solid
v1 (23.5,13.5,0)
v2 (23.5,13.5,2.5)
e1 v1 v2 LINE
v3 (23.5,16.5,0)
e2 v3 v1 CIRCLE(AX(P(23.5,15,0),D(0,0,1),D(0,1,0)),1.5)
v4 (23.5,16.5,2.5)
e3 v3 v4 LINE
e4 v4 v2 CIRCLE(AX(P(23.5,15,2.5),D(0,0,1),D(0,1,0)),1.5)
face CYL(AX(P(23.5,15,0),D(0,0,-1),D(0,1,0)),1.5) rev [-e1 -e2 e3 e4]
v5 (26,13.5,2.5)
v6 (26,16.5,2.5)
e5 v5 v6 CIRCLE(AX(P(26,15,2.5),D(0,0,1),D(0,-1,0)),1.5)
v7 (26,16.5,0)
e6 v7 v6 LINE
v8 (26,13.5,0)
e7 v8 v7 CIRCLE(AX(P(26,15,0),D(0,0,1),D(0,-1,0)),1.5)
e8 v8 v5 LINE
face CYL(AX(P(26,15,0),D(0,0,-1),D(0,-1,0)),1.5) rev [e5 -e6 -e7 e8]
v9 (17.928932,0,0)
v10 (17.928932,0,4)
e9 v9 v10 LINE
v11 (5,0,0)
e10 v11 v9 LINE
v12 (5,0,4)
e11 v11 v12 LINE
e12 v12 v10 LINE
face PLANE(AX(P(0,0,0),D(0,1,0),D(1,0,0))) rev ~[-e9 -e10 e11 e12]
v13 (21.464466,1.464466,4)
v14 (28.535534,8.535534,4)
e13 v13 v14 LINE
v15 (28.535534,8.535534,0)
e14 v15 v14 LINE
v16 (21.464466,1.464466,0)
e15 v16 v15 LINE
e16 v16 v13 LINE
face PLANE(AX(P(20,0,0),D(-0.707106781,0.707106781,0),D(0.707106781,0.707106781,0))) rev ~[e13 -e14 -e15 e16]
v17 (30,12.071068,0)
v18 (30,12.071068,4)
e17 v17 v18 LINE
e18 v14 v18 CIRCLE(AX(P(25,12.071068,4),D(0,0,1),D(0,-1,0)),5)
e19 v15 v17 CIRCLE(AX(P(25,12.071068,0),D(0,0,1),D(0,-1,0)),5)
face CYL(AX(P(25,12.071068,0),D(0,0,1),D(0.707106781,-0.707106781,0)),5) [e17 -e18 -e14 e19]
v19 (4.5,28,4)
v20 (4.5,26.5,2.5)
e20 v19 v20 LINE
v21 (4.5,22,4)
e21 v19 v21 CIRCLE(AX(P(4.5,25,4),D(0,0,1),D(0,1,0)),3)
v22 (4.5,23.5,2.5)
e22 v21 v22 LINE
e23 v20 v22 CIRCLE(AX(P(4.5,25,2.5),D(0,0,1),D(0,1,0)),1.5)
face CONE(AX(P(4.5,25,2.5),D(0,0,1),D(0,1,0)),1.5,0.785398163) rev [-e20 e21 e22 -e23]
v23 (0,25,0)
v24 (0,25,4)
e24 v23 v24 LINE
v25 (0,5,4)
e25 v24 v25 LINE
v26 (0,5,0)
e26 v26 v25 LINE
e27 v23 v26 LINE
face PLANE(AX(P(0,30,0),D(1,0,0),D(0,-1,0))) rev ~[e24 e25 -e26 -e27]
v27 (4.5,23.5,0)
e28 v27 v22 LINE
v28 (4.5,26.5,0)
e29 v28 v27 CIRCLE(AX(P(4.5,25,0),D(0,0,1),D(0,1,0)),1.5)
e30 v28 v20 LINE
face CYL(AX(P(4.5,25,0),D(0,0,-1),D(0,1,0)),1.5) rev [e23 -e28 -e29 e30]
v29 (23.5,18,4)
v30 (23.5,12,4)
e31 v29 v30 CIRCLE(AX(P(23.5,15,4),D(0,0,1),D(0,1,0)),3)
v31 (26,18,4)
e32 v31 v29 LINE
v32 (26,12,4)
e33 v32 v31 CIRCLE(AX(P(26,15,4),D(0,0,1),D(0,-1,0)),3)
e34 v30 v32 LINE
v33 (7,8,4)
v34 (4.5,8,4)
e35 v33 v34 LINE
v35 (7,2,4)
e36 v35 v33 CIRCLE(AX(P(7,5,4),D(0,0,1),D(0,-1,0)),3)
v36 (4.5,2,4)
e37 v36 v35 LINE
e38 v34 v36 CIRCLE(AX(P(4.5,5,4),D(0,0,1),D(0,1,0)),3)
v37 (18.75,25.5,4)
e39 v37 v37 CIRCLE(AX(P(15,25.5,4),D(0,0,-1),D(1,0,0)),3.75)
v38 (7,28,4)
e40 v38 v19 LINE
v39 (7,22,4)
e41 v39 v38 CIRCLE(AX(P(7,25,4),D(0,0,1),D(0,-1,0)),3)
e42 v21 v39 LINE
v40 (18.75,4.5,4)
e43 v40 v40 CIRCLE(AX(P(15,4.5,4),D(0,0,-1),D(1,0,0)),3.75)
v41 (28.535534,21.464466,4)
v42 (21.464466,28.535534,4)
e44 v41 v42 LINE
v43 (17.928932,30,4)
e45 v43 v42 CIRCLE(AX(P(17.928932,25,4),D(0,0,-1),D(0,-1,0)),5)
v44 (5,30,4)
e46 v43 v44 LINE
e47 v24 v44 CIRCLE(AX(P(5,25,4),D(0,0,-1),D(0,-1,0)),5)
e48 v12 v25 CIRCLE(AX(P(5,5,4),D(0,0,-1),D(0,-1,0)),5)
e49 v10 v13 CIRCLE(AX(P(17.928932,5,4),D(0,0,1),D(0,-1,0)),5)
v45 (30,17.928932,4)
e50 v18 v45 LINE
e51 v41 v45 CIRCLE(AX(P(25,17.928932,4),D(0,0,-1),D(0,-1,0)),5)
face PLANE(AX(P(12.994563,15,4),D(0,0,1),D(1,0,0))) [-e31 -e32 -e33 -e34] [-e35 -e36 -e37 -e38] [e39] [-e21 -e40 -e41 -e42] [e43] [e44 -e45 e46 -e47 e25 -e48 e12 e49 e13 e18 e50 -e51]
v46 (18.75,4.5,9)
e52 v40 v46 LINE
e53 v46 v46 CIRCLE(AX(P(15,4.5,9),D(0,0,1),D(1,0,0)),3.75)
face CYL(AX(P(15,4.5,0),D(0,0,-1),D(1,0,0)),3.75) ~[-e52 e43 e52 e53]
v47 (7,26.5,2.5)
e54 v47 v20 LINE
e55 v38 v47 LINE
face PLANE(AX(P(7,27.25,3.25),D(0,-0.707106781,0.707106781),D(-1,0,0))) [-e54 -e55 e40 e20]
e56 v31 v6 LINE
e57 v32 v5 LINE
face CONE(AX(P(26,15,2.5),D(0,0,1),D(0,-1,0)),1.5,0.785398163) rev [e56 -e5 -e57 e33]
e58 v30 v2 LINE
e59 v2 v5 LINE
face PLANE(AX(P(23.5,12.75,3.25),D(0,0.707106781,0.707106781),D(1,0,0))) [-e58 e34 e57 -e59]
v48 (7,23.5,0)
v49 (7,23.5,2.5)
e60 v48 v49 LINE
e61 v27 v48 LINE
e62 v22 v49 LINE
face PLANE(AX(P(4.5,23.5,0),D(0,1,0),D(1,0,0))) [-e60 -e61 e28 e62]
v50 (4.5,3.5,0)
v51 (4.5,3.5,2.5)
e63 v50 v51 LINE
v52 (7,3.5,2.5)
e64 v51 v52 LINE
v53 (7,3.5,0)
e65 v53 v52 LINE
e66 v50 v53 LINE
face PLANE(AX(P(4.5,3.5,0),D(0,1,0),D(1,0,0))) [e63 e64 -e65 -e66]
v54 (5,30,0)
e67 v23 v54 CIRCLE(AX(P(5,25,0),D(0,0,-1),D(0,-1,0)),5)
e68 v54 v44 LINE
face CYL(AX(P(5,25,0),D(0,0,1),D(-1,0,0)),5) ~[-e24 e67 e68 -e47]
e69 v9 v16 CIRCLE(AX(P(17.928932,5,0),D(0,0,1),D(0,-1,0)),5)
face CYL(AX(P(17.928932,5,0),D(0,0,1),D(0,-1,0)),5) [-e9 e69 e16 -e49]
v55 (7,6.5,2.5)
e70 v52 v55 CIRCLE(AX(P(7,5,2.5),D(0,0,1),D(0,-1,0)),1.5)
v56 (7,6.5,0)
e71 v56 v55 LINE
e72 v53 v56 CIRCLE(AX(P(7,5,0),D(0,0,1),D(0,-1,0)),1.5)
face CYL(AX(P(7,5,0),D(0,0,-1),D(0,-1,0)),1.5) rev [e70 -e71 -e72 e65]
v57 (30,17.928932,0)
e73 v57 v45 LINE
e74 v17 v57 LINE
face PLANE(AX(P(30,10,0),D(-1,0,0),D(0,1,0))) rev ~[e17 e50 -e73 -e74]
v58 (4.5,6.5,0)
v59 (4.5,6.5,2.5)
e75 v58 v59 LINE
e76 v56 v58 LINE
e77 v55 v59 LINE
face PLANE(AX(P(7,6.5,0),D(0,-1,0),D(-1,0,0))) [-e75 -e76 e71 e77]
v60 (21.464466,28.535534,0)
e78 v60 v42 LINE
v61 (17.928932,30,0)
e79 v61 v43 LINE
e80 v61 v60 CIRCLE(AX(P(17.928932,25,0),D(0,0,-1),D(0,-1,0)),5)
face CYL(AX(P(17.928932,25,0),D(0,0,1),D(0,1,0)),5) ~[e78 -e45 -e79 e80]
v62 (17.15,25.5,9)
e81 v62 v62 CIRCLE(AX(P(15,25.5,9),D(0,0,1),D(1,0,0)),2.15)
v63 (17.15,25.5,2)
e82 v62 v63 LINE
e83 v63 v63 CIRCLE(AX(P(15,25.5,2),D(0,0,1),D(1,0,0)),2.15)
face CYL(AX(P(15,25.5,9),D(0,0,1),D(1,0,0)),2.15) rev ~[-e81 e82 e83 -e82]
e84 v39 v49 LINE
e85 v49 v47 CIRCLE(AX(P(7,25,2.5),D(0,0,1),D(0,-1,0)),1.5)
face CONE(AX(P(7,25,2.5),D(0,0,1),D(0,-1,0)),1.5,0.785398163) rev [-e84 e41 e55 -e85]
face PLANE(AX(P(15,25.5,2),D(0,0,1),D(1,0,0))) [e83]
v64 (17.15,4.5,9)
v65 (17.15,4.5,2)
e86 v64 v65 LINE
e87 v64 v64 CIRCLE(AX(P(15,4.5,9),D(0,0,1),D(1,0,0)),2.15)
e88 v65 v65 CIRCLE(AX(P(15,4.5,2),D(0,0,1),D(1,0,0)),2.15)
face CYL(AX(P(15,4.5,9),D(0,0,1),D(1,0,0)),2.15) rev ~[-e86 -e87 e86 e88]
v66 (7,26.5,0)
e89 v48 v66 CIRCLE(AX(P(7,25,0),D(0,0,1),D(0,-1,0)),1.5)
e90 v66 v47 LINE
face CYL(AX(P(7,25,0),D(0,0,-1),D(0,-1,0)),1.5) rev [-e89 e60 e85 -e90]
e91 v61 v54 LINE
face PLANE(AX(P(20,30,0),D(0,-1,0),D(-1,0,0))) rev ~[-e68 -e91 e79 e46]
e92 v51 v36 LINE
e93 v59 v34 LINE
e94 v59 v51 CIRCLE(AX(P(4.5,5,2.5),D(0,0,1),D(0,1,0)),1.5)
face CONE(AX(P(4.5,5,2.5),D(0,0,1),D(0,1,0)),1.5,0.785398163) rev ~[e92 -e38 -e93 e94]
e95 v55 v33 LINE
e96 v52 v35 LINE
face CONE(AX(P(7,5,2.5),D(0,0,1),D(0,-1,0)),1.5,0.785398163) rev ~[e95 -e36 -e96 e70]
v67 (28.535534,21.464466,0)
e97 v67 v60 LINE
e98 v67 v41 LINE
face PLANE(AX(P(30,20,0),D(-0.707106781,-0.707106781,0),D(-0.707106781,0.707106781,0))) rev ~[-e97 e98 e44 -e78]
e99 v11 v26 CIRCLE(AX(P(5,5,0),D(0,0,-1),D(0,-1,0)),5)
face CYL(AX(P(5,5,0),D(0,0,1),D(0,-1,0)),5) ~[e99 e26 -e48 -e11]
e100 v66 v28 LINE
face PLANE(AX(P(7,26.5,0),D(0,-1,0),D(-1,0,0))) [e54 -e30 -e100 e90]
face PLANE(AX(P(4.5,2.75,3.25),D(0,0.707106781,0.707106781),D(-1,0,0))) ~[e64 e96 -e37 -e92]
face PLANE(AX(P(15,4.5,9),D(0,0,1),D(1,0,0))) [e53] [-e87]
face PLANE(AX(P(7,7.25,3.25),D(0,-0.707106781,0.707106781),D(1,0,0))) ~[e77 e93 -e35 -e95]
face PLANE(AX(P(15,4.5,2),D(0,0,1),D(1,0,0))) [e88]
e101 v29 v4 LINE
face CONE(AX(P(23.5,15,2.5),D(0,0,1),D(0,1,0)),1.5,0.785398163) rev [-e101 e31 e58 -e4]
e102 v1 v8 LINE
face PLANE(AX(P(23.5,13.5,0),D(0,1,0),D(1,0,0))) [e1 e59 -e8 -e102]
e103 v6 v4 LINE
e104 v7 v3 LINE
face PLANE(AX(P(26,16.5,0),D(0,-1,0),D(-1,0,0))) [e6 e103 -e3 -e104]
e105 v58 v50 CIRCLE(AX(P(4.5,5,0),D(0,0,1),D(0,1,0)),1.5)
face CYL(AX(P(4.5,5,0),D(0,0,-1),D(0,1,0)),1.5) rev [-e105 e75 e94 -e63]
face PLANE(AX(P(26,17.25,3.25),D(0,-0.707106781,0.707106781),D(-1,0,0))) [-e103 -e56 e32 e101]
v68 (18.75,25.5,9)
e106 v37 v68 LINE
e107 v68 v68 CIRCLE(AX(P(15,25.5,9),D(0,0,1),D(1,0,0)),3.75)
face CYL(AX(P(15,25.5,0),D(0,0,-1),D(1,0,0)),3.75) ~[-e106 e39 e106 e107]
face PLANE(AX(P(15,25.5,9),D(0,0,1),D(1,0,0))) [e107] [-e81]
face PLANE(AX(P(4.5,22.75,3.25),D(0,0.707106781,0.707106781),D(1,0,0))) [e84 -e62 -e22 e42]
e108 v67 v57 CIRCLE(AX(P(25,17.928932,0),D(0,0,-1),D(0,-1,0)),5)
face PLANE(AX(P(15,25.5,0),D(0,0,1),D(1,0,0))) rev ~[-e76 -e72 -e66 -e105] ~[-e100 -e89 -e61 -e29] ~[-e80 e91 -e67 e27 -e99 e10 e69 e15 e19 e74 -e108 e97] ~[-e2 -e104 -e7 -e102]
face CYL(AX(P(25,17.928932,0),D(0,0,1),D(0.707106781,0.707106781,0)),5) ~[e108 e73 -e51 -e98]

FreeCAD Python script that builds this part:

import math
import FreeCAD as App
import Part
import Sketcher


def edges_at(feature, points):
    """Names of the edges that pass closest to the given points."""
    edges = feature.Shape.Edges
    near = lambda p: min(range(len(edges)), key=lambda i: edges[i].distToShape(Part.Vertex(*p))[0])
    return sorted({f"Edge{near(p) + 1}" for p in points})


def add_polygon(sketch, points):
    """Adds a closed chain of lines whose ends are joined by coincident constraints."""
    first, n = sketch.GeometryCount, len(points)
    for a, b in zip(points, points[1:] + points[:1]):
        sketch.addGeometry(Part.LineSegment(App.Vector(*a, 0), App.Vector(*b, 0)), False)
    for i in range(n):
        sketch.addConstraint(Sketcher.Constraint("Coincident", first + i, 2, first + (i + 1) % n, 1))

doc = App.newDocument("Part")
params = doc.addObject("Spreadsheet::Sheet", "Params")
for row, (alias, value) in enumerate([
    ("sketch1_radius", "1.5 mm"),
    ("sketch1_width", "20 mm"),
    ("sketch1_height", "10 mm"),
    ("sketch1_height2", "30 mm"),
    ("sketch1_width2", "2.5 mm"),
    ("pad1_length", "4 mm"),
    ("sketch2_diameter", "7.5 mm"),
    ("pad2_length", "9 mm"),
    ("sketch3_diameter", "4.3 mm"),
    ("pocket1_length", "7 mm"),
    ("chamfer_size", "1.5 mm"),
    ("chamfer2_size", "1.5 mm"),
    ("chamfer3_size", "1.5 mm"),
    ("fillet_radius", "5 mm"),
    ("fillet2_radius", "5 mm"),
], start=1):
    params.set(f"A{row}", alias)
    params.set(f"B{row}", "=" + value)
    params.setAlias(f"B{row}", alias)

body = doc.addObject("PartDesign::Body", "Body")

sketch1 = doc.addObject("Sketcher::SketchObject", "Sketch")
body.addObject(sketch1)
sketch1.AttachmentSupport = (doc.XY_Plane, [""])
sketch1.MapMode = "FlatFace"
add_polygon(sketch1, [(0, 0), (20, 0), (30, 10), (30, 20), (20, 30), (0, 30)])
sketch1.addGeometry(Part.ArcOfCircle(Part.Circle(App.Vector(4.5, 5, 0), App.Vector(0, 0, 1), 1.5), math.radians(90), math.radians(270)), False)
sketch1.addGeometry(Part.LineSegment(App.Vector(4.5, 6.5, 0), App.Vector(7, 6.5, 0)), False)
sketch1.addGeometry(Part.ArcOfCircle(Part.Circle(App.Vector(7, 5, 0), App.Vector(0, 0, 1), 1.5), math.radians(-90), math.radians(90)), False)
sketch1.addGeometry(Part.LineSegment(App.Vector(7, 3.5, 0), App.Vector(4.5, 3.5, 0)), False)
sketch1.addGeometry(Part.ArcOfCircle(Part.Circle(App.Vector(4.5, 25, 0), App.Vector(0, 0, 1), 1.5), math.radians(90), math.radians(270)), False)
sketch1.addGeometry(Part.LineSegment(App.Vector(4.5, 26.5, 0), App.Vector(7, 26.5, 0)), False)
sketch1.addGeometry(Part.ArcOfCircle(Part.Circle(App.Vector(7, 25, 0), App.Vector(0, 0, 1), 1.5), math.radians(-90), math.radians(90)), False)
sketch1.addGeometry(Part.LineSegment(App.Vector(7, 23.5, 0), App.Vector(4.5, 23.5, 0)), False)
sketch1.addGeometry(Part.ArcOfCircle(Part.Circle(App.Vector(23.5, 15, 0), App.Vector(0, 0, 1), 1.5), math.radians(90), math.radians(270)), False)
sketch1.addGeometry(Part.LineSegment(App.Vector(23.5, 16.5, 0), App.Vector(26, 16.5, 0)), False)
sketch1.addGeometry(Part.ArcOfCircle(Part.Circle(App.Vector(26, 15, 0), App.Vector(0, 0, 1), 1.5), math.radians(-90), math.radians(90)), False)
sketch1.addGeometry(Part.LineSegment(App.Vector(26, 13.5, 0), App.Vector(23.5, 13.5, 0)), False)
sketch1.addConstraint(Sketcher.Constraint("Tangent", 6, 1, 7, 1))
sketch1.addConstraint(Sketcher.Constraint("Tangent", 7, 2, 8, 2))
sketch1.addConstraint(Sketcher.Constraint("Tangent", 8, 1, 9, 1))
sketch1.addConstraint(Sketcher.Constraint("Tangent", 9, 2, 6, 2))
sketch1.addConstraint(Sketcher.Constraint("Tangent", 10, 1, 11, 1))
sketch1.addConstraint(Sketcher.Constraint("Tangent", 11, 2, 12, 2))
sketch1.addConstraint(Sketcher.Constraint("Tangent", 12, 1, 13, 1))
sketch1.addConstraint(Sketcher.Constraint("Tangent", 13, 2, 10, 2))
sketch1.addConstraint(Sketcher.Constraint("Tangent", 14, 1, 15, 1))
sketch1.addConstraint(Sketcher.Constraint("Tangent", 15, 2, 16, 2))
sketch1.addConstraint(Sketcher.Constraint("Tangent", 16, 1, 17, 1))
sketch1.addConstraint(Sketcher.Constraint("Tangent", 17, 2, 14, 2))
sketch1.addConstraint(Sketcher.Constraint("Horizontal", 0))
sketch1.addConstraint(Sketcher.Constraint("Vertical", 2))
sketch1.addConstraint(Sketcher.Constraint("Horizontal", 4))
sketch1.addConstraint(Sketcher.Constraint("Vertical", 5))
sketch1.addConstraint(Sketcher.Constraint("Horizontal", 7))
sketch1.addConstraint(Sketcher.Constraint("Horizontal", 9))
sketch1.addConstraint(Sketcher.Constraint("Horizontal", 11))
sketch1.addConstraint(Sketcher.Constraint("Horizontal", 13))
sketch1.addConstraint(Sketcher.Constraint("Horizontal", 15))
sketch1.addConstraint(Sketcher.Constraint("Horizontal", 17))
sketch1.addConstraint(Sketcher.Constraint("Coincident", 5, 2, -1, 1))
sketch1.addConstraint(Sketcher.Constraint("Equal", 8, 10))
sketch1.addConstraint(Sketcher.Constraint("Equal", 12, 14))
sketch1.addConstraint(Sketcher.Constraint("Perpendicular", 1, 3))
sketch1.addConstraint(Sketcher.Constraint("Vertical", 6, 3, 10, 3))
sketch1.addConstraint(Sketcher.Constraint("Vertical", 8, 3, 12, 3))
sketch1.addConstraint(Sketcher.Constraint("Vertical", 0, 2, 3, 2))
sketch1.addConstraint(Sketcher.Constraint("Equal", 13, 15))
sketch1.addConstraint(Sketcher.Constraint("Equal", 1, 3))
sketch1.addConstraint(Sketcher.Constraint("Radius", 6, 1.5))
sketch1.addConstraint(Sketcher.Constraint("DistanceX", 0, 1, 0, 2, 20.0))
sketch1.addConstraint(Sketcher.Constraint("DistanceY", 2, 1, 2, 2, 10.0))
sketch1.addConstraint(Sketcher.Constraint("DistanceY", 5, 2, 5, 1, 30.0))
sketch1.addConstraint(Sketcher.Constraint("DistanceX", 7, 1, 7, 2, 2.5))
sketch1.addConstraint(Sketcher.Constraint("DistanceY", -1, 1, 6, 3, 5.0))
sketch1.addConstraint(Sketcher.Constraint("DistanceX", -1, 1, 8, 3, 7.0))
sketch1.addConstraint(Sketcher.Constraint("DistanceY", -1, 1, 10, 3, 25.0))
sketch1.addConstraint(Sketcher.Constraint("DistanceY", -1, 1, 14, 3, 15.0))
sketch1.addConstraint(Sketcher.Constraint("DistanceX", -1, 1, 16, 3, 26.0))
sketch1.setExpression("Constraints[37]", "Params.sketch1_radius")
sketch1.setExpression("Constraints[38]", "Params.sketch1_width")
sketch1.setExpression("Constraints[39]", "Params.sketch1_height")
sketch1.setExpression("Constraints[40]", "Params.sketch1_height2")
sketch1.setExpression("Constraints[41]", "Params.sketch1_width2")
pad1 = doc.addObject("PartDesign::Pad", "Pad")
body.addObject(pad1)
pad1.Profile = sketch1
pad1.setExpression("Length", "Params.pad1_length")

sketch2 = doc.addObject("Sketcher::SketchObject", "Sketch001")
body.addObject(sketch2)
sketch2.AttachmentSupport = (doc.XY_Plane, [""])
sketch2.MapMode = "FlatFace"
sketch2.addGeometry(Part.Circle(App.Vector(15, 25.5, 0), App.Vector(0, 0, 1), 3.8), False)
sketch2.addGeometry(Part.Circle(App.Vector(15, 4.5, 0), App.Vector(0, 0, 1), 3.8), False)
sketch2.addConstraint(Sketcher.Constraint("Equal", 0, 1))
sketch2.addConstraint(Sketcher.Constraint("Vertical", 0, 3, 1, 3))
sketch2.addConstraint(Sketcher.Constraint("Diameter", 0, 7.5))
sketch2.addConstraint(Sketcher.Constraint("DistanceX", -1, 1, 0, 3, 15.0))
sketch2.addConstraint(Sketcher.Constraint("DistanceY", 1, 3, 0, 3, 21.0))
sketch2.addConstraint(Sketcher.Constraint("DistanceY", -1, 1, 0, 3, 25.5))
sketch2.setExpression("Constraints[2]", "Params.sketch2_diameter")
pad2 = doc.addObject("PartDesign::Pad", "Pad001")
body.addObject(pad2)
pad2.Profile = sketch2
pad2.setExpression("Length", "Params.pad2_length")

sketch3 = doc.addObject("Sketcher::SketchObject", "Sketch002")
body.addObject(sketch3)
sketch3.AttachmentSupport = (doc.XY_Plane, [""])
sketch3.MapMode = "FlatFace"
sketch3.AttachmentOffset = App.Placement(App.Vector(0, 0, 9), App.Rotation())
sketch3.addGeometry(Part.Circle(App.Vector(15, 25.5, 0), App.Vector(0, 0, 1), 2.1), False)
sketch3.addGeometry(Part.Circle(App.Vector(15, 4.5, 0), App.Vector(0, 0, 1), 2.1), False)
sketch3.addConstraint(Sketcher.Constraint("Equal", 0, 1))
sketch3.addConstraint(Sketcher.Constraint("Vertical", 0, 3, 1, 3))
sketch3.addConstraint(Sketcher.Constraint("Diameter", 0, 4.3))
sketch3.addConstraint(Sketcher.Constraint("DistanceX", -1, 1, 0, 3, 15.0))
sketch3.addConstraint(Sketcher.Constraint("DistanceY", 1, 3, 0, 3, 21.0))
sketch3.addConstraint(Sketcher.Constraint("DistanceY", -1, 1, 0, 3, 25.5))
sketch3.setExpression("Constraints[2]", "Params.sketch3_diameter")
pocket1 = doc.addObject("PartDesign::Pocket", "Pocket")
body.addObject(pocket1)
pocket1.Profile = sketch3
pocket1.setExpression("Length", "Params.pocket1_length")
doc.recompute()

chamfer = doc.addObject("PartDesign::Chamfer", "Chamfer")
body.addObject(chamfer)
chamfer.Base = (pocket1, edges_at(pocket1, [
    (3, 5, 4),
    (5.75, 6.5, 4),
    (8.5, 5, 4),
    (5.75, 3.5, 4),
]))
chamfer.setExpression("Size", "Params.chamfer_size")
doc.recompute()

chamfer2 = doc.addObject("PartDesign::Chamfer", "Chamfer001")
body.addObject(chamfer2)
chamfer2.Base = (chamfer, edges_at(chamfer, [
    (3, 25, 4),
    (5.75, 26.5, 4),
    (8.5, 25, 4),
    (5.75, 23.5, 4),
]))
chamfer2.setExpression("Size", "Params.chamfer2_size")
doc.recompute()

chamfer3 = doc.addObject("PartDesign::Chamfer", "Chamfer002")
body.addObject(chamfer3)
chamfer3.Base = (chamfer2, edges_at(chamfer2, [
    (22, 15, 4),
    (24.75, 16.5, 4),
    (27.5, 15, 4),
    (24.75, 13.5, 4),
]))
chamfer3.setExpression("Size", "Params.chamfer3_size")
doc.recompute()

fillet = doc.addObject("PartDesign::Fillet", "Fillet")
body.addObject(fillet)
fillet.Base = (chamfer3, edges_at(chamfer3, [(0, 0, 2), (20, 0, 2), (30, 10, 2)]))
fillet.setExpression("Radius", "Params.fillet_radius")
doc.recompute()

fillet2 = doc.addObject("PartDesign::Fillet", "Fillet001")
body.addObject(fillet2)
fillet2.Base = (fillet, edges_at(fillet, [(30, 20, 2), (20, 30, 2), (0, 30, 2)]))
fillet2.setExpression("Radius", "Params.fillet2_radius")

doc.recompute()
